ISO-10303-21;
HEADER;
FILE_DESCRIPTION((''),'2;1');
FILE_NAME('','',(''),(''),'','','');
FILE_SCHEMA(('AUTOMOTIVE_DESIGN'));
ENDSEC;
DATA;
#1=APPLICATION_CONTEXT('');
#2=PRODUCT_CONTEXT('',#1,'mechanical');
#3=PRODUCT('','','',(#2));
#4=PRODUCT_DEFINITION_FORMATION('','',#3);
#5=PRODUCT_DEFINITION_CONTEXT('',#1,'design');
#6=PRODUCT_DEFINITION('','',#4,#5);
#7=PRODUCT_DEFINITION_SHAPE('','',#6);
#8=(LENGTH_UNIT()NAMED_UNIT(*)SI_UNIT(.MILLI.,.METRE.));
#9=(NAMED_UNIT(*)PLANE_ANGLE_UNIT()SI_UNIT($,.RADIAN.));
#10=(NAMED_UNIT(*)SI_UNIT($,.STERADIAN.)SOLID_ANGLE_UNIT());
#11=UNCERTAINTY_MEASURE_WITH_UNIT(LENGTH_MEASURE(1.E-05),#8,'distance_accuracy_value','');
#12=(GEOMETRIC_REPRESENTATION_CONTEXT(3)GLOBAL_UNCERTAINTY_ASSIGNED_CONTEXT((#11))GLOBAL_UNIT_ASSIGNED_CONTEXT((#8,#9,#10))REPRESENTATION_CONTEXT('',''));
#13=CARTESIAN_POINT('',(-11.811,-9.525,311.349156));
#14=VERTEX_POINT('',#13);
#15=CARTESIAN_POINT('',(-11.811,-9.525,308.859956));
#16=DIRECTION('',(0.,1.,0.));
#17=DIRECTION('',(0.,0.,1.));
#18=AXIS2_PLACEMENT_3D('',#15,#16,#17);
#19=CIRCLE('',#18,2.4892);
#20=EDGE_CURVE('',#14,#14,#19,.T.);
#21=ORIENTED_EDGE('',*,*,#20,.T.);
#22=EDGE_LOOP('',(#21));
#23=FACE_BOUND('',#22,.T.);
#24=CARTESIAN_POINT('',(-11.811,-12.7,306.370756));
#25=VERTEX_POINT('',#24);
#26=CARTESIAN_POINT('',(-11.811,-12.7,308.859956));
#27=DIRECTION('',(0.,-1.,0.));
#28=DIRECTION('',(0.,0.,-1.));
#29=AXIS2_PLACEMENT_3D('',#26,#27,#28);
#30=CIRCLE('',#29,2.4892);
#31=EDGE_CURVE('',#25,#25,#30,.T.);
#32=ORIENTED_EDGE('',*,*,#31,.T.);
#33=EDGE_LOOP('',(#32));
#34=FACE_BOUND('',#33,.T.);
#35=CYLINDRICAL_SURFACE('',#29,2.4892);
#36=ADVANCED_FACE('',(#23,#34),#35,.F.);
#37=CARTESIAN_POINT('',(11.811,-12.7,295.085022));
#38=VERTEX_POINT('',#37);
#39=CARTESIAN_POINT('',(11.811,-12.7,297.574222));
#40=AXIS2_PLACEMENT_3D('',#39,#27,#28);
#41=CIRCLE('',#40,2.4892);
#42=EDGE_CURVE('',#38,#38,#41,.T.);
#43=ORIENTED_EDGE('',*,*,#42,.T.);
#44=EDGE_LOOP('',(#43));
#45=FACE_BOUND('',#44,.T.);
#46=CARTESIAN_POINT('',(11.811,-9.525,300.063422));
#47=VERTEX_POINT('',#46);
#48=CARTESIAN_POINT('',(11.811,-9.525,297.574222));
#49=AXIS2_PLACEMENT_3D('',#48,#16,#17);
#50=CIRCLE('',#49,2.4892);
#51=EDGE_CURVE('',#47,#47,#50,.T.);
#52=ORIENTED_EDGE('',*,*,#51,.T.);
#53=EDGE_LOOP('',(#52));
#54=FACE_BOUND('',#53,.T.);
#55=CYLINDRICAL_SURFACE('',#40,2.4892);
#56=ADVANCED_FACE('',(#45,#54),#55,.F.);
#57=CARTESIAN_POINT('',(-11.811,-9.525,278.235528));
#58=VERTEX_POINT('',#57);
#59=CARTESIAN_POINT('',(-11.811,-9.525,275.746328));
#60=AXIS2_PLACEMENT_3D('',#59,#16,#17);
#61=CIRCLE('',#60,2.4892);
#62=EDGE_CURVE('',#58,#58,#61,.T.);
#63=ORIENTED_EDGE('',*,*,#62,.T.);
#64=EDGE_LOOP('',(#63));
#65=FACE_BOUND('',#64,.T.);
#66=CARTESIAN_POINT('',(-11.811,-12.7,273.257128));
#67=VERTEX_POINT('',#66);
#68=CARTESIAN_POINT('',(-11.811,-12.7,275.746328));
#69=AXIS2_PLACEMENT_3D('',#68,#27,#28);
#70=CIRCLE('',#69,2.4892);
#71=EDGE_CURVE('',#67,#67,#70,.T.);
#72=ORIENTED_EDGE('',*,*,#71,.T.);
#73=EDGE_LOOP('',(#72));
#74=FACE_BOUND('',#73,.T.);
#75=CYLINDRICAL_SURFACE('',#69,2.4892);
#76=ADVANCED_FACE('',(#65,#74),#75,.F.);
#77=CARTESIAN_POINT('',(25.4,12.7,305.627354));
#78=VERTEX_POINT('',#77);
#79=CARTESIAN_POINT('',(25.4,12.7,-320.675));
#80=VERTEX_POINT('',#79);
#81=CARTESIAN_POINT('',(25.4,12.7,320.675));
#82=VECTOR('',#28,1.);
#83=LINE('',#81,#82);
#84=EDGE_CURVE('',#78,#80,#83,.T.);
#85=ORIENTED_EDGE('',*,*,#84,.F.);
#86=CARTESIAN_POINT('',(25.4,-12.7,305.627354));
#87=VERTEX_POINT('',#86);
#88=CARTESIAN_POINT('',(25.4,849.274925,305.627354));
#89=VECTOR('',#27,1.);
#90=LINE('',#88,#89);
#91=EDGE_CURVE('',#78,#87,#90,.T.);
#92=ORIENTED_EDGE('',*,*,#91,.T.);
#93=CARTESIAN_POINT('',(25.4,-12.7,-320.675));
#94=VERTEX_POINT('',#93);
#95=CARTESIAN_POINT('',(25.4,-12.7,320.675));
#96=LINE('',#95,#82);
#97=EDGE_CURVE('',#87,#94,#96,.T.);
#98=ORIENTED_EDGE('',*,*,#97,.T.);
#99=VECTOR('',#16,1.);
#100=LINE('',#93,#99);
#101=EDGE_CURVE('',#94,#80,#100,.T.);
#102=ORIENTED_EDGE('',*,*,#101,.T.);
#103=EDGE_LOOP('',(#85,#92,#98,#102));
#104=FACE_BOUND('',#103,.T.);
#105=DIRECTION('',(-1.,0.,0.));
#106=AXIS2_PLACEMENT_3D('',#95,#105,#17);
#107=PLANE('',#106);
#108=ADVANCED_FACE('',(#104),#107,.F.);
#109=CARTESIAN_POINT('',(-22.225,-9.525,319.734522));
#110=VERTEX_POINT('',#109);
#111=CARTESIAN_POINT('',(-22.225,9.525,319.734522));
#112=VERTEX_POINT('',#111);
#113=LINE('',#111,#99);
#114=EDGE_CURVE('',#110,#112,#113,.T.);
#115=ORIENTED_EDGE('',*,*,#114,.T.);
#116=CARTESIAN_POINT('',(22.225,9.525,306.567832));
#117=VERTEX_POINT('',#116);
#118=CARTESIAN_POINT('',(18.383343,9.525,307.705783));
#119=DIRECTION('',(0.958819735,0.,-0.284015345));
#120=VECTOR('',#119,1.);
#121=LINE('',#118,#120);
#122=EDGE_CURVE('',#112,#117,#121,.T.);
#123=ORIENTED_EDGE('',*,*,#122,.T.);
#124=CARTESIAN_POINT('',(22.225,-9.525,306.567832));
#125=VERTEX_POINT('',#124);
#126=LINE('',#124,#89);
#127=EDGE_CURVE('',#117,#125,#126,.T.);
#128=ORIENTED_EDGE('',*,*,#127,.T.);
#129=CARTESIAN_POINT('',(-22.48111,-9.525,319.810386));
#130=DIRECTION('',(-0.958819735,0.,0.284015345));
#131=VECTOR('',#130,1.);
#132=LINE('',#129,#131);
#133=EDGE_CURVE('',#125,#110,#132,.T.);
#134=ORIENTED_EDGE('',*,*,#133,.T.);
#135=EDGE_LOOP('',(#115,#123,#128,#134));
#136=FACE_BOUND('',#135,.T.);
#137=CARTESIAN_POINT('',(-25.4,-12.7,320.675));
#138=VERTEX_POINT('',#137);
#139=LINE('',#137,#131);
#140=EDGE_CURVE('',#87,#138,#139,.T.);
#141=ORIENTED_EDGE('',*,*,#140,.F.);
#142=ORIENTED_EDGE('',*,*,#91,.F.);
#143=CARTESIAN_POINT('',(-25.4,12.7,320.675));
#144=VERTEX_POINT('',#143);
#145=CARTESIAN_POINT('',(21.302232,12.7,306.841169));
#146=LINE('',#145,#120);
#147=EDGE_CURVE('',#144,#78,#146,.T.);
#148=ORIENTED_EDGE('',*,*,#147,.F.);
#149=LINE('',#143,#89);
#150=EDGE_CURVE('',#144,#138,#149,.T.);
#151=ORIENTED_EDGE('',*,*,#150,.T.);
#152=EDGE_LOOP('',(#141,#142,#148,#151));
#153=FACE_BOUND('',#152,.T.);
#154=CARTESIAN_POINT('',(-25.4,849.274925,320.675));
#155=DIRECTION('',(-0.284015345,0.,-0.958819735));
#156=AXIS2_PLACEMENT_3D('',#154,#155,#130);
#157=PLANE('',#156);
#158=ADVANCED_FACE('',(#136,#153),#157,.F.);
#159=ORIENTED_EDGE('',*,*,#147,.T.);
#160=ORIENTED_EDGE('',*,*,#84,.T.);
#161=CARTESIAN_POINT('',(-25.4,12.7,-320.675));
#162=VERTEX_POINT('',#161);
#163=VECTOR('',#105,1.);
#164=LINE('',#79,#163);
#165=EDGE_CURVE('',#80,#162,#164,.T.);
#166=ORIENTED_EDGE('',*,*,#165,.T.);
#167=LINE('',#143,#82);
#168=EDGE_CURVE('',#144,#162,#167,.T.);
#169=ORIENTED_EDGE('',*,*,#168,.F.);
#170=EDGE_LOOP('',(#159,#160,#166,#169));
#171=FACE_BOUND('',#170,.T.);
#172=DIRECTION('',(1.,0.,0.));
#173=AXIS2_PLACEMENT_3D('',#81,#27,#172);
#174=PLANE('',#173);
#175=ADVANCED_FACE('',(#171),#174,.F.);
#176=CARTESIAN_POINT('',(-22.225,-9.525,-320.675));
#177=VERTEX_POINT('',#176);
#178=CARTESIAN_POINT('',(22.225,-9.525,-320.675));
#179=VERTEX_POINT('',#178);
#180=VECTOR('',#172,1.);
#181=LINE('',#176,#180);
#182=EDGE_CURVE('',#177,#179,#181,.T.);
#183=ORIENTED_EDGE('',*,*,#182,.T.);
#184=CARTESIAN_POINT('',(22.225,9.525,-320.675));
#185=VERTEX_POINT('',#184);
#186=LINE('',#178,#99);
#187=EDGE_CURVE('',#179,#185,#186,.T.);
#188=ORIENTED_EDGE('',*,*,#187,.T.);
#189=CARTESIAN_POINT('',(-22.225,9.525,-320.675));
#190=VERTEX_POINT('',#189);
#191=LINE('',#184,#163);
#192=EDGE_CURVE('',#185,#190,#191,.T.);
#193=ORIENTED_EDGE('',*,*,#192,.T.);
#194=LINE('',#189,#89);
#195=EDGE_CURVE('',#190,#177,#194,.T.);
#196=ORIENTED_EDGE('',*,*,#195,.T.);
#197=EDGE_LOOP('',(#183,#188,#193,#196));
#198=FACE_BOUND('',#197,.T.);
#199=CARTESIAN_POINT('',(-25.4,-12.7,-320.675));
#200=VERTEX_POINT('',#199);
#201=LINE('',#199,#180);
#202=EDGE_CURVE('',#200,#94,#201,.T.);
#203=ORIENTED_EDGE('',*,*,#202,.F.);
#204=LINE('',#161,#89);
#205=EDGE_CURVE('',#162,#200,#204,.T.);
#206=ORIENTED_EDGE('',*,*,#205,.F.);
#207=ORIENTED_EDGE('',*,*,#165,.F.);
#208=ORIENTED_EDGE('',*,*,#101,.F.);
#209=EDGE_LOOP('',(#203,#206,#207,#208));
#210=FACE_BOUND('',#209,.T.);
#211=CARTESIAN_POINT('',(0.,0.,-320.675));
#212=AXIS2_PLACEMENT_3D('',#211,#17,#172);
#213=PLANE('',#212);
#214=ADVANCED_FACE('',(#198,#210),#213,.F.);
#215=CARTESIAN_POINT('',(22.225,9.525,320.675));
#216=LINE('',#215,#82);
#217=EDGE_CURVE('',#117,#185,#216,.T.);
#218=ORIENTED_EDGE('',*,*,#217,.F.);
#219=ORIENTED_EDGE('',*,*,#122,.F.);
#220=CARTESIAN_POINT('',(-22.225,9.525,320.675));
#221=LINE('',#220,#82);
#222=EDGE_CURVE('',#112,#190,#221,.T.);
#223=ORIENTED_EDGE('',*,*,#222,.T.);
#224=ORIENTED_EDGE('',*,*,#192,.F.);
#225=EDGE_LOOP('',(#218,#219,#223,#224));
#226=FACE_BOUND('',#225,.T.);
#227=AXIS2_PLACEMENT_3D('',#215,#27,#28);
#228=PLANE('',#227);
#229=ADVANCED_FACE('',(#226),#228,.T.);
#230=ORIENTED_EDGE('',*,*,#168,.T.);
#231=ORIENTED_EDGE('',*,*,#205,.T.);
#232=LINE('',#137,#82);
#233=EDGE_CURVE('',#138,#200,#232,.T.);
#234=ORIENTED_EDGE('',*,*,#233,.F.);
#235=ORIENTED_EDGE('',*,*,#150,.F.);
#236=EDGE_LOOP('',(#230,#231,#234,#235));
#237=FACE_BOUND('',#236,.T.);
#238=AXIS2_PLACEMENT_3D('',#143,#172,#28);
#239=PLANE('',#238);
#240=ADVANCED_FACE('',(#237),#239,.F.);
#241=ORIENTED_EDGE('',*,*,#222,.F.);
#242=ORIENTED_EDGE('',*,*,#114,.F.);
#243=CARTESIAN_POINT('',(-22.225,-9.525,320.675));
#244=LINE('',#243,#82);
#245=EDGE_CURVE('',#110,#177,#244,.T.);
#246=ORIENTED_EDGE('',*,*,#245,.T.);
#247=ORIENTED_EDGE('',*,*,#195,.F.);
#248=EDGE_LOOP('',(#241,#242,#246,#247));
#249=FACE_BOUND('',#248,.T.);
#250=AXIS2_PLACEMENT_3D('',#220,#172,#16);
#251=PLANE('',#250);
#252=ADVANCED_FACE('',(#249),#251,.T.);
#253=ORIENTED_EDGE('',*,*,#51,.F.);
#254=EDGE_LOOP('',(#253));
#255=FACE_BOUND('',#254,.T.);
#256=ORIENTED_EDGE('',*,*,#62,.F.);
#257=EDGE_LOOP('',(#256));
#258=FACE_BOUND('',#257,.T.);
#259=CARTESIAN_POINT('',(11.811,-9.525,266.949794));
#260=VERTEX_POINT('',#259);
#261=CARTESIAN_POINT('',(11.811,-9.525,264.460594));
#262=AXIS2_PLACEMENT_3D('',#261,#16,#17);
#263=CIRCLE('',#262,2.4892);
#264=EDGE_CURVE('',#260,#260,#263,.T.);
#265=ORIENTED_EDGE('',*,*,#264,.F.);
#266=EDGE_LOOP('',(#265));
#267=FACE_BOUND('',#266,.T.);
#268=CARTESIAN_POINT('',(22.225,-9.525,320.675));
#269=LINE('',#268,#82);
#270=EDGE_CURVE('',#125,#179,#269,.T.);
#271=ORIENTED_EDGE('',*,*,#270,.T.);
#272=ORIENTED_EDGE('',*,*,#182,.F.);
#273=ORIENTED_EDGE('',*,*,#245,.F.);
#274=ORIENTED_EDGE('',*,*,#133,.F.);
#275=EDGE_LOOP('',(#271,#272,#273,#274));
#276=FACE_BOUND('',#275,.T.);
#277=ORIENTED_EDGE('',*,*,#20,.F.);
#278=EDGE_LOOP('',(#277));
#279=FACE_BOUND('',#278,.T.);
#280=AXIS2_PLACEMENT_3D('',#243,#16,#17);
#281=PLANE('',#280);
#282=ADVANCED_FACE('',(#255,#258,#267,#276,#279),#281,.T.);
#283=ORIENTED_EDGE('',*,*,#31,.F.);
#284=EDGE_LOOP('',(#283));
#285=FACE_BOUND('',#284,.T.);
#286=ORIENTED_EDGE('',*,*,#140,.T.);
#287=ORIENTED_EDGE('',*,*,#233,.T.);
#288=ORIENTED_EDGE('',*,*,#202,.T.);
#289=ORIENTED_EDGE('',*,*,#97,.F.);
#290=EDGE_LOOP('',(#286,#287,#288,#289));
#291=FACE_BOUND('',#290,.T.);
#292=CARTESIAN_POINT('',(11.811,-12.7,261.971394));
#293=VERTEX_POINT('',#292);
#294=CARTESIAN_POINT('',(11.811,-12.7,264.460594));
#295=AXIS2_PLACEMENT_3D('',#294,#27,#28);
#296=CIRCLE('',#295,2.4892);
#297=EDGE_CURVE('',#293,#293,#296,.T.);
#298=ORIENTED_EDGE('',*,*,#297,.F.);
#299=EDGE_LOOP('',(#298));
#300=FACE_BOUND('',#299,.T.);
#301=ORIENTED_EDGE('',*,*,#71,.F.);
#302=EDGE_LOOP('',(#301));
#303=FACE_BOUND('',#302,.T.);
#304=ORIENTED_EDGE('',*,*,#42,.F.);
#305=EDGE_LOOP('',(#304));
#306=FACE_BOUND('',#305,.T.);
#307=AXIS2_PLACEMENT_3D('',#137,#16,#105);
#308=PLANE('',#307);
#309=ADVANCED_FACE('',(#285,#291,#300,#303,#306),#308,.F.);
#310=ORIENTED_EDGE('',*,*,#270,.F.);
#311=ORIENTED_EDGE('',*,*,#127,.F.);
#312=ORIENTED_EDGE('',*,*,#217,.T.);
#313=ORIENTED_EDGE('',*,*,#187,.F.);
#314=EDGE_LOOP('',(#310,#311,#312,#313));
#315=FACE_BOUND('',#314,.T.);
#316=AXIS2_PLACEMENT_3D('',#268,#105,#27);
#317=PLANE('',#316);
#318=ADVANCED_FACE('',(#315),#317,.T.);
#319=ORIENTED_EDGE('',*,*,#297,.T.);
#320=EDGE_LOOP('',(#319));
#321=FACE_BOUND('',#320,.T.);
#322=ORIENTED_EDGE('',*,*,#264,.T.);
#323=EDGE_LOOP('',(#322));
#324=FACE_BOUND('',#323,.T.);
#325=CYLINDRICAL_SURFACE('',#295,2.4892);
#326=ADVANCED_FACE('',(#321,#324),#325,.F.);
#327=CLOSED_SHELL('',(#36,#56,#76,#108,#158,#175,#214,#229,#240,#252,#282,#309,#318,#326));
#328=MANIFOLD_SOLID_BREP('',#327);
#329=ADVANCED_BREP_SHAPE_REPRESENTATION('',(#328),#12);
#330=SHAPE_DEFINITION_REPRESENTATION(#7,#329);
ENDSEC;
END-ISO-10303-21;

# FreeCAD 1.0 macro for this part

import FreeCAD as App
import Part
import Sketcher

V = App.Vector
Q = App.Units.Quantity


def add_polygon(sketch, points):
    """Adds a closed chain of lines whose ends are joined by coincident constraints."""
    first, n = sketch.GeometryCount, len(points)
    for a, b in zip(points, points[1:] + points[:1]):
        sketch.addGeometry(Part.LineSegment(App.Vector(*a, 0), App.Vector(*b, 0)), False)
    for i in range(n):
        sketch.addConstraint(Sketcher.Constraint("Coincident", first + i, 2, first + (i + 1) % n, 1))

doc = App.newDocument("Part")
body = doc.addObject("PartDesign::Body", "Body")

# Sketch on XY plane
sketch1 = doc.addObject("Sketcher::SketchObject", "Sketch")
body.addObject(sketch1)
sketch1.AttachmentSupport = (doc.XY_Plane, [""])
sketch1.MapMode = "FlatFace"
add_polygon(sketch1, [(-25, 13), (-25, -13), (25, -13), (25, 13)])  # lines 0-3
add_polygon(sketch1, [(22, -10), (-22, -10), (-22, 10), (22, 10)])  # lines 4-7
sketch1.addConstraint([
    Sketcher.Constraint("Vertical", 0),
    Sketcher.Constraint("Horizontal", 1),
    Sketcher.Constraint("Vertical", 2),
    Sketcher.Constraint("Horizontal", 3),
    Sketcher.Constraint("Horizontal", 4),
    Sketcher.Constraint("Vertical", 5),
    Sketcher.Constraint("Horizontal", 6),
    Sketcher.Constraint("Vertical", 7),
    Sketcher.Constraint("Symmetric", 0, 2, 2, 2, -1, 1),
    Sketcher.Constraint("Symmetric", 4, 2, 6, 2, -1, 1),
    Sketcher.Constraint("DistanceX", 1, 1, 1, 2, Q("2 in")),
    Sketcher.Constraint("DistanceY", 0, 2, 0, 1, Q("1 in")),
    Sketcher.Constraint("DistanceX", 4, 2, 4, 1, Q("1.75 in")),
    Sketcher.Constraint("DistanceY", 5, 1, 5, 2, Q("0.75 in")),
])
pad1 = doc.addObject("PartDesign::Pad", "Pad")
body.addObject(pad1)
pad1.Profile = sketch1
pad1.Type = "TwoLengths"
pad1.Length = Q("12.625 in")
pad1.Length2 = Q("12.625 in")

# Sketch on XZ plane
sketch2 = doc.addObject("Sketcher::SketchObject", "Sketch001")
body.addObject(sketch2)
sketch2.AttachmentSupport = (doc.XZ_Plane, [""])
sketch2.MapMode = "FlatFace"
sketch2.AttachmentOffset = App.Placement(V(0, 0, -0.5 * 25.4), App.Rotation())
add_polygon(sketch2, [(-25, 321), (1322, 321), (3891, -37), (3837, -420), (1269, -63), (25, 306)])  # lines 0-5
sketch2.addConstraint([
    Sketcher.Constraint("Horizontal", 0),
    Sketcher.Constraint("Perpendicular", 1, 2),
    Sketcher.Constraint("Perpendicular", 2, 3),
    Sketcher.Constraint("Parallel", 4, 5),
    Sketcher.Constraint("Equal", 1, 3),
    Sketcher.Constraint("DistanceX", -1, 1, 4, 2, Q("1 in")),
    Sketcher.Constraint("DistanceX", 5, 2, -1, 1, Q("1 in")),
    Sketcher.Constraint("Angle", 4, Q("163.5 deg")),
    Sketcher.Constraint("DistanceY", -1, 1, 0, 2, Q("12.625 in")),
    Sketcher.Constraint("DistanceX", 0, 1, 0, 2, Q("1347.517471 mm")),
    Sketcher.Constraint("DistanceX", -1, 1, 3, 2, Q("1268.718302 mm")),
    Sketcher.Constraint("Distance", 1, Q("2593.434942 mm")),
])
pocket1 = doc.addObject("PartDesign::Pocket", "Pocket")
body.addObject(pocket1)
pocket1.Profile = sketch2
pocket1.Type = "ThroughAll"
pocket1.Midplane = True

# Sketch on XZ plane
sketch3 = doc.addObject("Sketcher::SketchObject", "Sketch002")
body.addObject(sketch3)
sketch3.AttachmentSupport = (doc.XZ_Plane, [""])
sketch3.MapMode = "FlatFace"
sketch3.AttachmentOffset = App.Placement(V(0, 0, 0.5 * 25.4), App.Rotation())
sketch3.addGeometry([
    Part.Circle(V(11.8, 264.5, 0), V(0, 0, 1), 2.5),
    Part.Circle(V(-11.8, 275.7, 0), V(0, 0, 1), 2.5),
    Part.Circle(V(11.8, 297.6, 0), V(0, 0, 1), 2.5),
    Part.Circle(V(-11.8, 308.9, 0), V(0, 0, 1), 2.5),
], False)
sketch3.addConstraint([
    Sketcher.Constraint("Equal", 0, 1),
    Sketcher.Constraint("Equal", 1, 2),
    Sketcher.Constraint("Equal", 2, 3),
    Sketcher.Constraint("Vertical", 0, 3, 2, 3),
    Sketcher.Constraint("Vertical", 1, 3, 3, 3),
    Sketcher.Constraint("Diameter", 0, Q("0.196 in")),
    Sketcher.Constraint("DistanceX", 1, 3, 0, 3, Q("0.93 in")),
    Sketcher.Constraint("DistanceX", -1, 1, 0, 3, Q("0.465 in")),
    Sketcher.Constraint("DistanceY", -1, 1, 2, 3, Q("297.574222 mm")),
    Sketcher.Constraint("DistanceY", -1, 1, 0, 3, Q("264.460594 mm")),
    Sketcher.Constraint("DistanceY", -1, 1, 1, 3, Q("275.746328 mm")),
    Sketcher.Constraint("DistanceY", -1, 1, 3, 3, Q("308.859956 mm")),
])
doc.recompute()
hole = doc.addObject("PartDesign::Hole", "Hole")
body.addObject(hole)
hole.Profile = sketch3
hole.ThreadType = "None"
hole.Diameter = Q("0.196 in")
hole.DepthType = "Dimension"
hole.Depth = Q("0.2 in")
hole.DrillPoint = "Angled"
hole.DrillPointAngle = 118

doc.recompute()
